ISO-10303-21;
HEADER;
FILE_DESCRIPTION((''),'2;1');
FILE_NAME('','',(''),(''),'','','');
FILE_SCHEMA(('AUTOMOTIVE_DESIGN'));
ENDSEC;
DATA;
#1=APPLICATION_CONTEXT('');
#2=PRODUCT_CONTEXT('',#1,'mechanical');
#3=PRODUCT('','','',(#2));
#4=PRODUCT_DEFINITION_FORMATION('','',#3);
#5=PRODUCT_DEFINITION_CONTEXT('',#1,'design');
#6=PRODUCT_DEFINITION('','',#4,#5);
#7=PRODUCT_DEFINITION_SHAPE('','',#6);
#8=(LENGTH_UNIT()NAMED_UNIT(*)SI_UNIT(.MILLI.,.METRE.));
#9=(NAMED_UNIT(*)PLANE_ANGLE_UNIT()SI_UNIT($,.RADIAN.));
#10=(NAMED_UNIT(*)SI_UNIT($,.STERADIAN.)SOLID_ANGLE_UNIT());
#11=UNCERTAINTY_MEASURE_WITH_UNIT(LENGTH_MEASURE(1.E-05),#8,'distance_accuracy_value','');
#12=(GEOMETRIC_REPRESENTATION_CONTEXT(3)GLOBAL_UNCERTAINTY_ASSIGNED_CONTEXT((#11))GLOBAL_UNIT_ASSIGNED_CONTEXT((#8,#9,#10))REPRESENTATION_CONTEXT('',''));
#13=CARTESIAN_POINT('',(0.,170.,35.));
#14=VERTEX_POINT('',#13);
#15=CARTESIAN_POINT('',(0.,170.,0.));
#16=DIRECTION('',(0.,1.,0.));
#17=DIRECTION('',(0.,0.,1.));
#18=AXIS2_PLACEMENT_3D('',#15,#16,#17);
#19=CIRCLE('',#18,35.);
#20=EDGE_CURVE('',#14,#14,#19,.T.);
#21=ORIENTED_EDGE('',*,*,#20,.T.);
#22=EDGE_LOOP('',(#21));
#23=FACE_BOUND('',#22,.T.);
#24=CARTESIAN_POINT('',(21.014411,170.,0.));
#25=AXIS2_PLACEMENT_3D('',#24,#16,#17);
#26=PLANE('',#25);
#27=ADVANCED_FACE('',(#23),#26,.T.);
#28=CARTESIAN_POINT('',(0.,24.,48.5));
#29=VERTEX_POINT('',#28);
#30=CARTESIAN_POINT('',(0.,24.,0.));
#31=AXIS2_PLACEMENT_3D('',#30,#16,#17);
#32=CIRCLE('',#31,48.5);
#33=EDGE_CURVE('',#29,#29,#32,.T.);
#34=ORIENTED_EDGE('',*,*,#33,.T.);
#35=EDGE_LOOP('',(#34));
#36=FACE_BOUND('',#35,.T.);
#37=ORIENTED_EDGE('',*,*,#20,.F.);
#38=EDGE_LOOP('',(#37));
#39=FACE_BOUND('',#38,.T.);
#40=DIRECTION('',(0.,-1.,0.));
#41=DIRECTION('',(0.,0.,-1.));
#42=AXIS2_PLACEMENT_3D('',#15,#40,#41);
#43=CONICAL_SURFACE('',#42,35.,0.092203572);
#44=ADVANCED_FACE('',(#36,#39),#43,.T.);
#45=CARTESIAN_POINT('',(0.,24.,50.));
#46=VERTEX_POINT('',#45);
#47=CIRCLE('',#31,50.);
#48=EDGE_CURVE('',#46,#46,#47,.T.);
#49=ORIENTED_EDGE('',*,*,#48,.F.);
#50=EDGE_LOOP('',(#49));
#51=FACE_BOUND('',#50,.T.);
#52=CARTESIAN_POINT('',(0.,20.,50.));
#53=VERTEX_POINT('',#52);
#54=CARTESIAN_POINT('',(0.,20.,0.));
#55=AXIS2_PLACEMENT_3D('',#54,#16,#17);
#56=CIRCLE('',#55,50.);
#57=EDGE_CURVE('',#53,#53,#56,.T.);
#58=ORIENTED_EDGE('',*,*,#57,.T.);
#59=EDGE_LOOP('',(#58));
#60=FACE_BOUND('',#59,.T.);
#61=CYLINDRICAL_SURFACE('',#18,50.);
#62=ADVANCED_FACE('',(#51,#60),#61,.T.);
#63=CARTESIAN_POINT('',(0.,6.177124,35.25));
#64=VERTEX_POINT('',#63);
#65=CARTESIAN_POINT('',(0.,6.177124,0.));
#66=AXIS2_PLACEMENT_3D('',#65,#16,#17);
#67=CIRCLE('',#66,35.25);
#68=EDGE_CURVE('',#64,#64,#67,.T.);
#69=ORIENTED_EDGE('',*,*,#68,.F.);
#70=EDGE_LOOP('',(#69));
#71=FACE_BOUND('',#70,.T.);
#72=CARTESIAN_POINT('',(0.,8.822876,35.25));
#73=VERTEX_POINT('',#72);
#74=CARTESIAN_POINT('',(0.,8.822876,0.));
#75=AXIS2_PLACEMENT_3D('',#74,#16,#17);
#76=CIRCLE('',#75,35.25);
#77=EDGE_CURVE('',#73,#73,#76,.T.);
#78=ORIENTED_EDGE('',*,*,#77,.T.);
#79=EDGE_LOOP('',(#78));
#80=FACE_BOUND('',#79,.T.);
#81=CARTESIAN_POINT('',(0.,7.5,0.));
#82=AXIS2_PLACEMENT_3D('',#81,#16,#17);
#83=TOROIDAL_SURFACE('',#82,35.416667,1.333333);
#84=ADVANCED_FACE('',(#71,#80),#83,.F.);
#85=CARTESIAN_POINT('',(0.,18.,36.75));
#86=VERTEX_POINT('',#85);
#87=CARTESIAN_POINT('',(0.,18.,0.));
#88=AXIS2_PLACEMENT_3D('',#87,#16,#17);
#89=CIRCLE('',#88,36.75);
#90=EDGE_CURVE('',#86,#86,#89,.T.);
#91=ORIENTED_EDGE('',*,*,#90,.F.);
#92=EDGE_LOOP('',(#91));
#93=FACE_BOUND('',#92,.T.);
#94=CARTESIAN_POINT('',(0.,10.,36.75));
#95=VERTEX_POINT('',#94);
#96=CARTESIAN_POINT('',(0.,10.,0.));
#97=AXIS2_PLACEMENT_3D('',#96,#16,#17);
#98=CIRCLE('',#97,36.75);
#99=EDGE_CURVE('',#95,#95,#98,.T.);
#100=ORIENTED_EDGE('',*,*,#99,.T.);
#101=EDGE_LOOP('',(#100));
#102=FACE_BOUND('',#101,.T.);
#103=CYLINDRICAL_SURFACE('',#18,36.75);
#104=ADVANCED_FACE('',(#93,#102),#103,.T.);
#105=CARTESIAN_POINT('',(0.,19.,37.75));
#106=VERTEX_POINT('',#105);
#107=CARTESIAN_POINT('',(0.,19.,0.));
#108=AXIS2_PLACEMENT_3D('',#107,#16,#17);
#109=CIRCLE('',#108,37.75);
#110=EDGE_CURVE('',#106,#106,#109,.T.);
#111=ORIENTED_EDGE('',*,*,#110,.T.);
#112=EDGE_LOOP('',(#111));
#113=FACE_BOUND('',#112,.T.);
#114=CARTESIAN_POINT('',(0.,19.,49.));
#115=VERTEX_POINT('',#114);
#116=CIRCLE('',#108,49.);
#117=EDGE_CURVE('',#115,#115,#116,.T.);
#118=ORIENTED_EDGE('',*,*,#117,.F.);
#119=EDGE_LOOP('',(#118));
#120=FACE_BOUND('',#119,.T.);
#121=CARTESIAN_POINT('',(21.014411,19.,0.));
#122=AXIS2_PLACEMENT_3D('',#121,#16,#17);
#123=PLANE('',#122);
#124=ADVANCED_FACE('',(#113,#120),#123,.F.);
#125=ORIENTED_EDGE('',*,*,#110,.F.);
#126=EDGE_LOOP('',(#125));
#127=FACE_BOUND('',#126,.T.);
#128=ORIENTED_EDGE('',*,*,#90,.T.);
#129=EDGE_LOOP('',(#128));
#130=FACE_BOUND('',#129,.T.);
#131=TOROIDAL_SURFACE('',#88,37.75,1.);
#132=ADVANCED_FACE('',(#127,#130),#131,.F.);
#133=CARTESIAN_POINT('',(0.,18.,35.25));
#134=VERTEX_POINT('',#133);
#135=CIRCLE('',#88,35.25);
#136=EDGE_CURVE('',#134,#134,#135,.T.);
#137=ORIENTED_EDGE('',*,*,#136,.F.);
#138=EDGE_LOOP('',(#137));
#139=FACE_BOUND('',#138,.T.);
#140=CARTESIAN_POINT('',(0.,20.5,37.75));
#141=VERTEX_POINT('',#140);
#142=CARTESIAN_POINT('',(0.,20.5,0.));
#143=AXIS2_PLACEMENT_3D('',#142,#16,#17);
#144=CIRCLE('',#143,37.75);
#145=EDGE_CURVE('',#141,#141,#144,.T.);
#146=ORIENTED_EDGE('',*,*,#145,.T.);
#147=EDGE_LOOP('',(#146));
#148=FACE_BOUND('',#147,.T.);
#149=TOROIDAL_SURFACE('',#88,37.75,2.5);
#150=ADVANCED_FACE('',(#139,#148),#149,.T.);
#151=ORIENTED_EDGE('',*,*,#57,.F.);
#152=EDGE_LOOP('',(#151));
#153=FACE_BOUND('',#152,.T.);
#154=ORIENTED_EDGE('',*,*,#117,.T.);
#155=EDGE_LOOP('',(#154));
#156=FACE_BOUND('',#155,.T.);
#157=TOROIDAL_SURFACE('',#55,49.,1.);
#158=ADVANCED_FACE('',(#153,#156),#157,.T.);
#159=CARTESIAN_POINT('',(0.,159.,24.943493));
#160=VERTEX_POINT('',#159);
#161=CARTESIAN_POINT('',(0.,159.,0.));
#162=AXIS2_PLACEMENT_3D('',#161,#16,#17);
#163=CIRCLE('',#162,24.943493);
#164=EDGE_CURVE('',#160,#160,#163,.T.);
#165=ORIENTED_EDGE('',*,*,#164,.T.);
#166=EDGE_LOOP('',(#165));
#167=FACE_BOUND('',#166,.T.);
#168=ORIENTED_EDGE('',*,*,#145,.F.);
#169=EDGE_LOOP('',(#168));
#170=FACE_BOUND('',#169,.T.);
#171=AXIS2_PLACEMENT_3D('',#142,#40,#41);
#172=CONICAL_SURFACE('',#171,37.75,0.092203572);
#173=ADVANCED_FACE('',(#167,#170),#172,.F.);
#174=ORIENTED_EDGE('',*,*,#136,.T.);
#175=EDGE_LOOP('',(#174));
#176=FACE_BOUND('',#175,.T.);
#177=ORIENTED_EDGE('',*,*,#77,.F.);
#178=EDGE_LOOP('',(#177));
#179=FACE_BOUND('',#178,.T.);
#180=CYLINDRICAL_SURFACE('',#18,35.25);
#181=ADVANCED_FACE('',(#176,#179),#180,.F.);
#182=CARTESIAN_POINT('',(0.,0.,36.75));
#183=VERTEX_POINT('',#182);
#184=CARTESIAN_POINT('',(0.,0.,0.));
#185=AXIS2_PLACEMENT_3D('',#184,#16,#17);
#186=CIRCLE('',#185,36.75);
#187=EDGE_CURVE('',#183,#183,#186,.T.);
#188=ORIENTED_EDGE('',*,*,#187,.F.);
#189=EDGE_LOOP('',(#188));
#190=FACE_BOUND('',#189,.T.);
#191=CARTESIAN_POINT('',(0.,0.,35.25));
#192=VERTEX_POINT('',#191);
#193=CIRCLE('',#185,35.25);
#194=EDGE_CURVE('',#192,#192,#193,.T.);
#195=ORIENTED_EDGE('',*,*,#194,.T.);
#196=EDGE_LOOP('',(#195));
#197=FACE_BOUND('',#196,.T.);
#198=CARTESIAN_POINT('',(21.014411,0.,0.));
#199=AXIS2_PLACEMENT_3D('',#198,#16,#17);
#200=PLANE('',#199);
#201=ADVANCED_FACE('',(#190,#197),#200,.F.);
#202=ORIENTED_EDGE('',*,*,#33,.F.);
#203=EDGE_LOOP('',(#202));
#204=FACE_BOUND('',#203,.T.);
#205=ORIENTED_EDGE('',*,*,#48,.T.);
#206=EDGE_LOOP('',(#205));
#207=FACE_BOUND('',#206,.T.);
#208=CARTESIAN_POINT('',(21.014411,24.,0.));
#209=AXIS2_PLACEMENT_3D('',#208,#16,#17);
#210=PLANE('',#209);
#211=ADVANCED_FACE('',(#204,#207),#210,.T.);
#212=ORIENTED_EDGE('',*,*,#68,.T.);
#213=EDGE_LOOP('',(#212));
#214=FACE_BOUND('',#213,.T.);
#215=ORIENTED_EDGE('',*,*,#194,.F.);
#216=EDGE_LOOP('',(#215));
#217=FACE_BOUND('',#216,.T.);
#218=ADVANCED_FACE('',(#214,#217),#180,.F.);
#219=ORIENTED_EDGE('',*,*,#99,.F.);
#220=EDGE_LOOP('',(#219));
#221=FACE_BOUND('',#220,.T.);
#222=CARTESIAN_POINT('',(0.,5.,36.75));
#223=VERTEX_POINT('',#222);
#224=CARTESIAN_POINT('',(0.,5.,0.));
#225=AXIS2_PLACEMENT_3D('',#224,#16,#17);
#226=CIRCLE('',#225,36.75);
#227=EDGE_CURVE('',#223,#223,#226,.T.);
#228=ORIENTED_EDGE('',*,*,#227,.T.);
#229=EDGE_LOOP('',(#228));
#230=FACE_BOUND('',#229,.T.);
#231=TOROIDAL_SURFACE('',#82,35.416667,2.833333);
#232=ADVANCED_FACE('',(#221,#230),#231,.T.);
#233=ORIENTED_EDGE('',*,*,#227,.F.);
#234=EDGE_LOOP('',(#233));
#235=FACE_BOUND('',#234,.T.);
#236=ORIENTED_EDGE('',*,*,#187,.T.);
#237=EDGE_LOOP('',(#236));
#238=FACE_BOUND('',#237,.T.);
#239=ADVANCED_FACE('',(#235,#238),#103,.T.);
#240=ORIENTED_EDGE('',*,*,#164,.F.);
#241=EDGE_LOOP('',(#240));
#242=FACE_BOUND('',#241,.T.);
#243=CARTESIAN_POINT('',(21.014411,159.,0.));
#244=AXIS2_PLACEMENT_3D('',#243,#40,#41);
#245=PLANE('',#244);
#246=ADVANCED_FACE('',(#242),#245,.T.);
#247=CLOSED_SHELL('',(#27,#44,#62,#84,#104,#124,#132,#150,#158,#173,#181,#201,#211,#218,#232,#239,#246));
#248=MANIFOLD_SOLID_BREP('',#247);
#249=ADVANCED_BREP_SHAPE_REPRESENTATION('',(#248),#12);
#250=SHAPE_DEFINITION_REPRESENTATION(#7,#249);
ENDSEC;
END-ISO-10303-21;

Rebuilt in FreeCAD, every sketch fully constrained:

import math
import FreeCAD as App
import Part
import Sketcher

doc = App.newDocument("Part")
params = doc.addObject("Spreadsheet::Sheet", "Params")
for row, (alias, value) in enumerate([
    ("sketch1_radius", "1 mm"),
    ("sketch1_radius2", "2.5 mm"),
    ("sketch1_width", "35 mm"),
    ("sketch1_height", "5 mm"),
    ("sketch1_height2", "8 mm"),
    ("revolution_angle", "360 deg"),
], start=1):
    params.set(f"A{row}", alias)
    params.set(f"B{row}", "=" + value)
    params.setAlias(f"B{row}", alias)

body = doc.addObject("PartDesign::Body", "Body")

sketch1 = body.newObject("Sketcher::SketchObject", "Sketch")
sketch1.AttachmentSupport = (doc.getObject("XY_Plane"), [""])
sketch1.MapMode = "FlatFace"
sketch1.addGeometry(Part.ArcOfCircle(Part.Circle(App.Vector(37.8, 18, 0), App.Vector(0, 0, 1), 2.5), math.radians(90), math.radians(180)), False)
sketch1.addGeometry(Part.LineSegment(App.Vector(35.2, 18, 0), App.Vector(35.2, 8.8, 0)), False)
sketch1.addGeometry(Part.ArcOfCircle(Part.Circle(App.Vector(35.4, 7.5, 0), App.Vector(0, 0, 1), 1.3), math.radians(-97), math.radians(97)), False)
sketch1.addGeometry(Part.LineSegment(App.Vector(35.2, 6.2, 0), App.Vector(35.2, 0, 0)), False)
sketch1.addGeometry(Part.LineSegment(App.Vector(35.2, 0, 0), App.Vector(36.8, 0, 0)), False)
sketch1.addGeometry(Part.LineSegment(App.Vector(36.8, 0, 0), App.Vector(36.8, 5, 0)), False)
sketch1.addGeometry(Part.ArcOfCircle(Part.Circle(App.Vector(35.4, 7.5, 0), App.Vector(0, 0, 1), 2.8), math.radians(-62), math.radians(62)), False)
sketch1.addGeometry(Part.LineSegment(App.Vector(36.8, 10, 0), App.Vector(36.8, 18, 0)), False)
sketch1.addGeometry(Part.ArcOfCircle(Part.Circle(App.Vector(37.8, 18, 0), App.Vector(0, 0, 1), 1), math.radians(90), math.radians(180)), False)
sketch1.addGeometry(Part.LineSegment(App.Vector(37.8, 19, 0), App.Vector(49, 19, 0)), False)
sketch1.addGeometry(Part.ArcOfCircle(Part.Circle(App.Vector(49, 20, 0), App.Vector(0, 0, 1), 1), math.radians(-90), math.radians(0)), False)
sketch1.addGeometry(Part.LineSegment(App.Vector(50, 20, 0), App.Vector(50, 24, 0)), False)
sketch1.addGeometry(Part.LineSegment(App.Vector(50, 24, 0), App.Vector(48.5, 24, 0)), False)
sketch1.addGeometry(Part.LineSegment(App.Vector(48.5, 24, 0), App.Vector(35, 170, 0)), False)
sketch1.addGeometry(Part.LineSegment(App.Vector(35, 170, 0), App.Vector(0, 170, 0)), False)
sketch1.addGeometry(Part.LineSegment(App.Vector(0, 170, 0), App.Vector(0, 159, 0)), False)
sketch1.addGeometry(Part.LineSegment(App.Vector(0, 159, 0), App.Vector(24.9, 159, 0)), False)
sketch1.addGeometry(Part.LineSegment(App.Vector(24.9, 159, 0), App.Vector(37.8, 20.5, 0)), False)
sketch1.addConstraint(Sketcher.Constraint("Tangent", 0, 2, 1, 1))
sketch1.addConstraint(Sketcher.Constraint("Coincident", 1, 2, 2, 2))
sketch1.addConstraint(Sketcher.Constraint("Coincident", 2, 1, 3, 1))
sketch1.addConstraint(Sketcher.Constraint("Coincident", 3, 2, 4, 1))
sketch1.addConstraint(Sketcher.Constraint("Coincident", 4, 2, 5, 1))
sketch1.addConstraint(Sketcher.Constraint("Coincident", 5, 2, 6, 1))
sketch1.addConstraint(Sketcher.Constraint("Coincident", 6, 2, 7, 1))
sketch1.addConstraint(Sketcher.Constraint("Tangent", 7, 2, 8, 2))
sketch1.addConstraint(Sketcher.Constraint("Tangent", 8, 1, 9, 1))
sketch1.addConstraint(Sketcher.Constraint("Tangent", 9, 2, 10, 1))
sketch1.addConstraint(Sketcher.Constraint("Tangent", 10, 2, 11, 1))
sketch1.addConstraint(Sketcher.Constraint("Coincident", 11, 2, 12, 1))
sketch1.addConstraint(Sketcher.Constraint("Coincident", 12, 2, 13, 1))
sketch1.addConstraint(Sketcher.Constraint("Coincident", 13, 2, 14, 1))
sketch1.addConstraint(Sketcher.Constraint("Coincident", 14, 2, 15, 1))
sketch1.addConstraint(Sketcher.Constraint("Coincident", 15, 2, 16, 1))
sketch1.addConstraint(Sketcher.Constraint("Coincident", 16, 2, 17, 1))
sketch1.addConstraint(Sketcher.Constraint("Coincident", 17, 2, 0, 1))
sketch1.addConstraint(Sketcher.Constraint("Vertical", 1))
sketch1.addConstraint(Sketcher.Constraint("Vertical", 3))
sketch1.addConstraint(Sketcher.Constraint("Horizontal", 4))
sketch1.addConstraint(Sketcher.Constraint("Vertical", 5))
sketch1.addConstraint(Sketcher.Constraint("Vertical", 7))
sketch1.addConstraint(Sketcher.Constraint("Horizontal", 9))
sketch1.addConstraint(Sketcher.Constraint("Vertical", 11))
sketch1.addConstraint(Sketcher.Constraint("Horizontal", 12))
sketch1.addConstraint(Sketcher.Constraint("Horizontal", 14))
sketch1.addConstraint(Sketcher.Constraint("Vertical", 15))
sketch1.addConstraint(Sketcher.Constraint("Horizontal", 16))
sketch1.addConstraint(Sketcher.Constraint("Coincident", 6, 3, 2, 3))
sketch1.addConstraint(Sketcher.Constraint("Coincident", 8, 3, 0, 3))
sketch1.addConstraint(Sketcher.Constraint("Equal", 8, 10))
sketch1.addConstraint(Sketcher.Constraint("PointOnObject", 3, 2, -1))
sketch1.addConstraint(Sketcher.Constraint("PointOnObject", 14, 2, -2))
sketch1.addConstraint(Sketcher.Constraint("Parallel", 13, 17))
sketch1.addConstraint(Sketcher.Constraint("Vertical", 1, 2, 2, 1))
sketch1.addConstraint(Sketcher.Constraint("Vertical", 5, 2, 6, 2))
sketch1.addConstraint(Sketcher.Constraint("Vertical", 8, 1, 17, 2))
sketch1.addConstraint(Sketcher.Constraint("Equal", 4, 12))
sketch1.addConstraint(Sketcher.Constraint("Radius", 8, 1.0))
sketch1.addConstraint(Sketcher.Constraint("Radius", 0, 2.5))
sketch1.addConstraint(Sketcher.Constraint("DistanceX", 14, 2, 14, 1, 35.0))
sketch1.addConstraint(Sketcher.Constraint("DistanceY", 5, 1, 5, 2, 5.0))
sketch1.addConstraint(Sketcher.Constraint("DistanceY", 7, 1, 7, 2, 8.0))
sketch1.addConstraint(Sketcher.Constraint("DistanceY", 11, 1, 11, 2, 4.0))
sketch1.addConstraint(Sketcher.Constraint("DistanceY", 15, 2, 15, 1, 11.0))
sketch1.addConstraint(Sketcher.Constraint("DistanceY", -1, 1, 0, 3, 18.0))
sketch1.addConstraint(Sketcher.Constraint("DistanceX", -1, 1, 10, 3, 49.0))
sketch1.addConstraint(Sketcher.Constraint("DistanceY", -1, 1, 13, 2, 170.0))
sketch1.addConstraint(Sketcher.Constraint("DistanceX", 9, 1, 9, 2, 11.25))
sketch1.addConstraint(Sketcher.Constraint("Radius", 2, 1.333333))
sketch1.addConstraint(Sketcher.Constraint("Radius", 6, 2.833333))
sketch1.setExpression("Constraints[39]", "Params.sketch1_radius")
sketch1.setExpression("Constraints[40]", "Params.sketch1_radius2")
sketch1.setExpression("Constraints[41]", "Params.sketch1_width")
sketch1.setExpression("Constraints[42]", "Params.sketch1_height")
sketch1.setExpression("Constraints[43]", "Params.sketch1_height2")
revolution = body.newObject("PartDesign::Revolution", "Revolution")
revolution.Profile = sketch1
revolution.ReferenceAxis = (sketch1, ["V_Axis"])
revolution.setExpression("Angle", "Params.revolution_angle")

doc.recompute()
